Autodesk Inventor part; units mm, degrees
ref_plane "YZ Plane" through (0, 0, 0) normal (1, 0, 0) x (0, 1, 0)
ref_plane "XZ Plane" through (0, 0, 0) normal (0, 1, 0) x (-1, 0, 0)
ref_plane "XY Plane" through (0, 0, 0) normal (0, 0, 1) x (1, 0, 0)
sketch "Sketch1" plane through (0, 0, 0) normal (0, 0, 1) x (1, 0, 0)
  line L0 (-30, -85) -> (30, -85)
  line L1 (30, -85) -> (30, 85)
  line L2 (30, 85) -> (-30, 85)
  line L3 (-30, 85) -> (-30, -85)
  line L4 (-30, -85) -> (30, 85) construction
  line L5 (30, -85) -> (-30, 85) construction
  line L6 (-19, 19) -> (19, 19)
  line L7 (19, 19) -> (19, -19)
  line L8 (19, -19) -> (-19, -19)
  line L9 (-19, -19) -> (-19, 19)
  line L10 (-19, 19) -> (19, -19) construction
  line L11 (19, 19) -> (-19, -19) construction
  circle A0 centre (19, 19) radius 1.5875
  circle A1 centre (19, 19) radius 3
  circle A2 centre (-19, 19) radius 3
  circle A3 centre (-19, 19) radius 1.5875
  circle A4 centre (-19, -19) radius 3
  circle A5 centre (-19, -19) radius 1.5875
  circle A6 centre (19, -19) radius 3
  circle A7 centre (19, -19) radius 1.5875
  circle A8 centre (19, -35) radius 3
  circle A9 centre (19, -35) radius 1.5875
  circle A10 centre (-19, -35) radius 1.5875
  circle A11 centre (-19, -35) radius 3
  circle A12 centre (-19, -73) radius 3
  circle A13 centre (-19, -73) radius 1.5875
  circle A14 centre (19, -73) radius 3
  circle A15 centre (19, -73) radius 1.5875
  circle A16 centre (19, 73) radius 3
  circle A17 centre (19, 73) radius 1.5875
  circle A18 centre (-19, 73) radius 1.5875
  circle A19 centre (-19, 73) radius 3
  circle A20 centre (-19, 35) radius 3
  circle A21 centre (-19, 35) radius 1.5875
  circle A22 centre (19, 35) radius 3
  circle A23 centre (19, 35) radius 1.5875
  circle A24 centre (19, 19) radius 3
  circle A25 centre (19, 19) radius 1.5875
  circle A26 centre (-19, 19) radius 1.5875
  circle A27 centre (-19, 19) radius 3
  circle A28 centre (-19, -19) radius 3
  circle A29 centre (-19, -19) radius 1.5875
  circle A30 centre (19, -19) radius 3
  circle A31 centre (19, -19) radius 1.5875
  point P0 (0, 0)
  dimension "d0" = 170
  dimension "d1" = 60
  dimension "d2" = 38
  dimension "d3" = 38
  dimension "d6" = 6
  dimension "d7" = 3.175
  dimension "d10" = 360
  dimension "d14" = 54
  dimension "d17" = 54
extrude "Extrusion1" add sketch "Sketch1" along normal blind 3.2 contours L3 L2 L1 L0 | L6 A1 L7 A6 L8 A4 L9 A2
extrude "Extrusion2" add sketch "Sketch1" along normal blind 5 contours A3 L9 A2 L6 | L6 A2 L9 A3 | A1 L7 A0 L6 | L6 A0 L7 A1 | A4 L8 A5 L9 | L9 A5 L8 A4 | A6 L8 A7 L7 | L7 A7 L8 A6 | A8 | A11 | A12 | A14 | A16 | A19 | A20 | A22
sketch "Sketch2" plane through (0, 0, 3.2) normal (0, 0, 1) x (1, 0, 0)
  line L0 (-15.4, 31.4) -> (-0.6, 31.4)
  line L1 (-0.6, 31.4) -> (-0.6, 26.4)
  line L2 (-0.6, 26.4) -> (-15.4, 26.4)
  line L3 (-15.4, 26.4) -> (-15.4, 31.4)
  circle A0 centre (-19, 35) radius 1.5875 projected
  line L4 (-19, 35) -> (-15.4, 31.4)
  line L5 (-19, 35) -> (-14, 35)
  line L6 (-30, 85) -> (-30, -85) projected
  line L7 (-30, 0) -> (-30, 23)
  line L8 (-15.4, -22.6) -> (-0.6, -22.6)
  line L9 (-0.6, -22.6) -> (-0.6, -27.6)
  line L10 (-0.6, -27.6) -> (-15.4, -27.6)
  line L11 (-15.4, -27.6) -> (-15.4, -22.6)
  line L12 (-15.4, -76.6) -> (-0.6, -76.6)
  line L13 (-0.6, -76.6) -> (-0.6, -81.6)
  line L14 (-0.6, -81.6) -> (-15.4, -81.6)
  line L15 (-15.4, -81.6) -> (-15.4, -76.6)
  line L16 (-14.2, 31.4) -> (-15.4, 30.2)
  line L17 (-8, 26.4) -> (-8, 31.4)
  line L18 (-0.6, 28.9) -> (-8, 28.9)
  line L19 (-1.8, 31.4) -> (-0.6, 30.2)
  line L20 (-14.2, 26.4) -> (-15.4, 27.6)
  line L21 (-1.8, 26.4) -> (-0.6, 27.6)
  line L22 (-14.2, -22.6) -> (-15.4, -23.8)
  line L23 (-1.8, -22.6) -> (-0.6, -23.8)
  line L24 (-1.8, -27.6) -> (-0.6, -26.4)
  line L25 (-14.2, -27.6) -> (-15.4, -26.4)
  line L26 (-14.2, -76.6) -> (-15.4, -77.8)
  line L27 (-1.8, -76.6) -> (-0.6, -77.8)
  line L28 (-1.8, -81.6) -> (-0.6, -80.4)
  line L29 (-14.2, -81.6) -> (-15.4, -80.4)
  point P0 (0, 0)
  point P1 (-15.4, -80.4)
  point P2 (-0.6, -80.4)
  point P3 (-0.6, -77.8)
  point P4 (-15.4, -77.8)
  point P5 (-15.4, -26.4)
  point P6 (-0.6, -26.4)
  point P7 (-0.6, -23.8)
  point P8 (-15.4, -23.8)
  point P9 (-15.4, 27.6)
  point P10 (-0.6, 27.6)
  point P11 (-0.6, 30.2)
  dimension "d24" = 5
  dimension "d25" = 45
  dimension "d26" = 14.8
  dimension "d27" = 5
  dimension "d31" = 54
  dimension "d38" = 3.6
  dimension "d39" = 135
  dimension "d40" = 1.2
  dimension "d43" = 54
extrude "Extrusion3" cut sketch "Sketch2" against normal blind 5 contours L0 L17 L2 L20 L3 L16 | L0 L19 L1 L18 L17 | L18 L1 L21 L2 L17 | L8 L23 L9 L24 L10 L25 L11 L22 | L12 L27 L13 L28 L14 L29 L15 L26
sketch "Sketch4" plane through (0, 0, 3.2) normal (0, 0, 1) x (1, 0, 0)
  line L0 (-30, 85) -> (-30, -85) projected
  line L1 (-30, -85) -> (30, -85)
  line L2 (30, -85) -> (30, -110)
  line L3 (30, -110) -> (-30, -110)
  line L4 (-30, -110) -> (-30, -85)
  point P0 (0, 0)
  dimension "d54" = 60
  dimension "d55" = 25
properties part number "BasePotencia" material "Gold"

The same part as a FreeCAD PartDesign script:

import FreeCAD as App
import Part
import Sketcher

doc = App.newDocument("Part")
params = doc.addObject("Spreadsheet::Sheet", "Params")
for row, (alias, value) in enumerate([
    ("sketch1_diameter", "6 mm"),
    ("sketch1_width", "60 mm"),
    ("sketch1_height", "170 mm"),
    ("pad1_length", "3.2 mm"),
    ("sketch2_diameter", "6 mm"),
    ("pad2_length", "5 mm"),
    ("pocket1_length", "5 mm"),
], start=1):
    params.set(f"A{row}", alias)
    params.set(f"B{row}", "=" + value)
    params.setAlias(f"B{row}", alias)

body = doc.addObject("PartDesign::Body", "Body")

sketch1 = body.newObject("Sketcher::SketchObject", "Sketch")
sketch1.AttachmentSupport = (doc.getObject("XY_Plane"), [""])
sketch1.MapMode = "FlatFace"
sketch1.addGeometry(Part.LineSegment(App.Vector(-30, 85, 0), App.Vector(-30, -85, 0)), False)
sketch1.addGeometry(Part.LineSegment(App.Vector(-30, -85, 0), App.Vector(30, -85, 0)), False)
sketch1.addGeometry(Part.LineSegment(App.Vector(30, -85, 0), App.Vector(30, 85, 0)), False)
sketch1.addGeometry(Part.LineSegment(App.Vector(30, 85, 0), App.Vector(-30, 85, 0)), False)
sketch1.addGeometry(Part.Circle(App.Vector(-19, -73, 0), App.Vector(0, 0, 1), 3), False)
sketch1.addGeometry(Part.Circle(App.Vector(-19, -35, 0), App.Vector(0, 0, 1), 3), False)
sketch1.addGeometry(Part.Circle(App.Vector(19, -73, 0), App.Vector(0, 0, 1), 3), False)
sketch1.addGeometry(Part.Circle(App.Vector(19, -35, 0), App.Vector(0, 0, 1), 3), False)
sketch1.addGeometry(Part.Circle(App.Vector(-19, 35, 0), App.Vector(0, 0, 1), 3), False)
sketch1.addGeometry(Part.Circle(App.Vector(-19, 73, 0), App.Vector(0, 0, 1), 3), False)
sketch1.addGeometry(Part.Circle(App.Vector(-19, 19, 0), App.Vector(0, 0, 1), 3), False)
sketch1.addGeometry(Part.Circle(App.Vector(-19, -19, 0), App.Vector(0, 0, 1), 3), False)
sketch1.addGeometry(Part.Circle(App.Vector(19, -19, 0), App.Vector(0, 0, 1), 3), False)
sketch1.addGeometry(Part.Circle(App.Vector(19, 19, 0), App.Vector(0, 0, 1), 3), False)
sketch1.addGeometry(Part.Circle(App.Vector(19, 35, 0), App.Vector(0, 0, 1), 3), False)
sketch1.addGeometry(Part.Circle(App.Vector(19, 73, 0), App.Vector(0, 0, 1), 3), False)
sketch1.addConstraint(Sketcher.Constraint("Coincident", 0, 2, 1, 1))
sketch1.addConstraint(Sketcher.Constraint("Coincident", 1, 2, 2, 1))
sketch1.addConstraint(Sketcher.Constraint("Coincident", 2, 2, 3, 1))
sketch1.addConstraint(Sketcher.Constraint("Coincident", 3, 2, 0, 1))
sketch1.addConstraint(Sketcher.Constraint("Vertical", 0))
sketch1.addConstraint(Sketcher.Constraint("Horizontal", 1))
sketch1.addConstraint(Sketcher.Constraint("Vertical", 2))
sketch1.addConstraint(Sketcher.Constraint("Horizontal", 3))
sketch1.addConstraint(Sketcher.Constraint("Equal", 4, 5))
sketch1.addConstraint(Sketcher.Constraint("Equal", 5, 6))
sketch1.addConstraint(Sketcher.Constraint("Equal", 6, 7))
sketch1.addConstraint(Sketcher.Constraint("Equal", 7, 8))
sketch1.addConstraint(Sketcher.Constraint("Equal", 8, 9))
sketch1.addConstraint(Sketcher.Constraint("Equal", 9, 10))
sketch1.addConstraint(Sketcher.Constraint("Equal", 10, 11))
sketch1.addConstraint(Sketcher.Constraint("Equal", 11, 12))
sketch1.addConstraint(Sketcher.Constraint("Equal", 12, 13))
sketch1.addConstraint(Sketcher.Constraint("Equal", 13, 14))
sketch1.addConstraint(Sketcher.Constraint("Equal", 14, 15))
sketch1.addConstraint(Sketcher.Constraint("Symmetric", 7, 3, 8, 3, -1, 1))
sketch1.addConstraint(Sketcher.Constraint("Symmetric", 6, 3, 9, 3, -1, 1))
sketch1.addConstraint(Sketcher.Constraint("Symmetric", 10, 3, 12, 3, -1, 1))
sketch1.addConstraint(Sketcher.Constraint("Symmetric", 11, 3, 13, 3, -1, 1))
sketch1.addConstraint(Sketcher.Constraint("Symmetric", 5, 3, 14, 3, -1, 1))
sketch1.addConstraint(Sketcher.Constraint("Symmetric", 4, 3, 15, 3, -1, 1))
sketch1.addConstraint(Sketcher.Constraint("Symmetric", 0, 2, 2, 2, -1, 1))
sketch1.addConstraint(Sketcher.Constraint("Symmetric", 4, 3, 6, 3, -2))
sketch1.addConstraint(Sketcher.Constraint("Symmetric", 5, 3, 7, 3, -2))
sketch1.addConstraint(Sketcher.Constraint("Symmetric", 11, 3, 12, 3, -2))
sketch1.addConstraint(Sketcher.Constraint("Vertical", 4, 3, 5, 3))
sketch1.addConstraint(Sketcher.Constraint("Vertical", 9, 3, 10, 3))
sketch1.addConstraint(Sketcher.Constraint("Diameter", 4, 6.0))
sketch1.addConstraint(Sketcher.Constraint("DistanceX", 1, 1, 1, 2, 60.0))
sketch1.addConstraint(Sketcher.Constraint("DistanceY", 0, 2, 0, 1, 170.0))
sketch1.addConstraint(Sketcher.Constraint("DistanceY", 4, 3, 5, 3, 38.0))
sketch1.addConstraint(Sketcher.Constraint("DistanceX", 4, 3, 6, 3, 38.0))
sketch1.addConstraint(Sketcher.Constraint("DistanceY", 5, 3, 10, 3, 54.0))
sketch1.addConstraint(Sketcher.Constraint("DistanceY", 10, 3, 9, 3, 54.0))
sketch1.setExpression("Constraints[31]", "Params.sketch1_diameter")
sketch1.setExpression("Constraints[32]", "Params.sketch1_width")
sketch1.setExpression("Constraints[33]", "Params.sketch1_height")
pad1 = body.newObject("PartDesign::Pad", "Pad")
pad1.Profile = sketch1
pad1.setExpression("Length", "Params.pad1_length")

sketch2 = body.newObject("Sketcher::SketchObject", "Sketch001")
sketch2.AttachmentSupport = (doc.getObject("XY_Plane"), [""])
sketch2.MapMode = "FlatFace"
sketch2.addGeometry(Part.Circle(App.Vector(-19, 19, 0), App.Vector(0, 0, 1), 3), False)
sketch2.addGeometry(Part.Circle(App.Vector(-19, 19, 0), App.Vector(0, 0, 1), 1.6), False)
sketch2.addGeometry(Part.Circle(App.Vector(19, 19, 0), App.Vector(0, 0, 1), 3), False)
sketch2.addGeometry(Part.Circle(App.Vector(19, 19, 0), App.Vector(0, 0, 1), 1.6), False)
sketch2.addGeometry(Part.Circle(App.Vector(-19, -19, 0), App.Vector(0, 0, 1), 3), False)
sketch2.addGeometry(Part.Circle(App.Vector(-19, -19, 0), App.Vector(0, 0, 1), 1.6), False)
sketch2.addGeometry(Part.Circle(App.Vector(19, -19, 0), App.Vector(0, 0, 1), 3), False)
sketch2.addGeometry(Part.Circle(App.Vector(19, -19, 0), App.Vector(0, 0, 1), 1.6), False)
sketch2.addGeometry(Part.Circle(App.Vector(19, -35, 0), App.Vector(0, 0, 1), 3), False)
sketch2.addGeometry(Part.Circle(App.Vector(19, -35, 0), App.Vector(0, 0, 1), 1.6), False)
sketch2.addGeometry(Part.Circle(App.Vector(-19, -35, 0), App.Vector(0, 0, 1), 3), False)
sketch2.addGeometry(Part.Circle(App.Vector(-19, -35, 0), App.Vector(0, 0, 1), 1.6), False)
sketch2.addGeometry(Part.Circle(App.Vector(-19, -73, 0), App.Vector(0, 0, 1), 3), False)
sketch2.addGeometry(Part.Circle(App.Vector(-19, -73, 0), App.Vector(0, 0, 1), 1.6), False)
sketch2.addGeometry(Part.Circle(App.Vector(19, -73, 0), App.Vector(0, 0, 1), 3), False)
sketch2.addGeometry(Part.Circle(App.Vector(19, -73, 0), App.Vector(0, 0, 1), 1.6), False)
sketch2.addGeometry(Part.Circle(App.Vector(19, 73, 0), App.Vector(0, 0, 1), 3), False)
sketch2.addGeometry(Part.Circle(App.Vector(19, 73, 0), App.Vector(0, 0, 1), 1.6), False)
sketch2.addGeometry(Part.Circle(App.Vector(-19, 73, 0), App.Vector(0, 0, 1), 3), False)
sketch2.addGeometry(Part.Circle(App.Vector(-19, 73, 0), App.Vector(0, 0, 1), 1.6), False)
sketch2.addGeometry(Part.Circle(App.Vector(-19, 35, 0), App.Vector(0, 0, 1), 3), False)
sketch2.addGeometry(Part.Circle(App.Vector(-19, 35, 0), App.Vector(0, 0, 1), 1.6), False)
sketch2.addGeometry(Part.Circle(App.Vector(19, 35, 0), App.Vector(0, 0, 1), 3), False)
sketch2.addGeometry(Part.Circle(App.Vector(19, 35, 0), App.Vector(0, 0, 1), 1.6), False)
sketch2.addConstraint(Sketcher.Constraint("Coincident", 1, 3, 0, 3))
sketch2.addConstraint(Sketcher.Constraint("Coincident", 3, 3, 2, 3))
sketch2.addConstraint(Sketcher.Constraint("Coincident", 5, 3, 4, 3))
sketch2.addConstraint(Sketcher.Constraint("Coincident", 7, 3, 6, 3))
sketch2.addConstraint(Sketcher.Constraint("Coincident", 9, 3, 8, 3))
sketch2.addConstraint(Sketcher.Constraint("Coincident", 11, 3, 10, 3))
sketch2.addConstraint(Sketcher.Constraint("Coincident", 13, 3, 12, 3))
sketch2.addConstraint(Sketcher.Constraint("Coincident", 15, 3, 14, 3))
sketch2.addConstraint(Sketcher.Constraint("Coincident", 17, 3, 16, 3))
sketch2.addConstraint(Sketcher.Constraint("Coincident", 19, 3, 18, 3))
sketch2.addConstraint(Sketcher.Constraint("Coincident", 21, 3, 20, 3))
sketch2.addConstraint(Sketcher.Constraint("Coincident", 23, 3, 22, 3))
sketch2.addConstraint(Sketcher.Constraint("Equal", 0, 2))
sketch2.addConstraint(Sketcher.Constraint("Equal", 1, 3))
sketch2.addConstraint(Sketcher.Constraint("Equal", 2, 4))
sketch2.addConstraint(Sketcher.Constraint("Equal", 3, 5))
sketch2.addConstraint(Sketcher.Constraint("Equal", 4, 6))
sketch2.addConstraint(Sketcher.Constraint("Equal", 5, 7))
sketch2.addConstraint(Sketcher.Constraint("Equal", 6, 8))
sketch2.addConstraint(Sketcher.Constraint("Equal", 7, 9))
sketch2.addConstraint(Sketcher.Constraint("Equal", 8, 10))
sketch2.addConstraint(Sketcher.Constraint("Equal", 9, 11))
sketch2.addConstraint(Sketcher.Constraint("Equal", 10, 12))
sketch2.addConstraint(Sketcher.Constraint("Equal", 11, 13))
sketch2.addConstraint(Sketcher.Constraint("Equal", 12, 14))
sketch2.addConstraint(Sketcher.Constraint("Equal", 13, 15))
sketch2.addConstraint(Sketcher.Constraint("Equal", 14, 16))
sketch2.addConstraint(Sketcher.Constraint("Equal", 15, 17))
sketch2.addConstraint(Sketcher.Constraint("Equal", 16, 18))
sketch2.addConstraint(Sketcher.Constraint("Equal", 17, 19))
sketch2.addConstraint(Sketcher.Constraint("Equal", 18, 20))
sketch2.addConstraint(Sketcher.Constraint("Equal", 19, 21))
sketch2.addConstraint(Sketcher.Constraint("Equal", 20, 22))
sketch2.addConstraint(Sketcher.Constraint("Equal", 21, 23))
sketch2.addConstraint(Sketcher.Constraint("Symmetric", 2, 3, 4, 3, -1, 1))
sketch2.addConstraint(Sketcher.Constraint("Symmetric", 0, 3, 6, 3, -1, 1))
sketch2.addConstraint(Sketcher.Constraint("Symmetric", 12, 3, 16, 3, -1, 1))
sketch2.addConstraint(Sketcher.Constraint("Symmetric", 14, 3, 18, 3, -1, 1))
sketch2.addConstraint(Sketcher.Constraint("Symmetric", 8, 3, 20, 3, -1, 1))
sketch2.addConstraint(Sketcher.Constraint("Symmetric", 10, 3, 22, 3, -1, 1))
sketch2.addConstraint(Sketcher.Constraint("Symmetric", 0, 3, 2, 3, -2))
sketch2.addConstraint(Sketcher.Constraint("Symmetric", 8, 3, 10, 3, -2))
sketch2.addConstraint(Sketcher.Constraint("Symmetric", 12, 3, 14, 3, -2))
sketch2.addConstraint(Sketcher.Constraint("Vertical", 7, 3, 8, 3))
sketch2.addConstraint(Sketcher.Constraint("Vertical", 11, 3, 12, 3))
sketch2.addConstraint(Sketcher.Constraint("Diameter", 0, 6.0))
sketch2.addConstraint(Sketcher.Constraint("Diameter", 1, 3.175))
sketch2.addConstraint(Sketcher.Constraint("DistanceX", 0, 3, 2, 3, 38.0))
sketch2.addConstraint(Sketcher.Constraint("DistanceY", 4, 3, 0, 3, 38.0))
sketch2.addConstraint(Sketcher.Constraint("DistanceY", 8, 3, 2, 3, 54.0))
sketch2.addConstraint(Sketcher.Constraint("DistanceY", 12, 3, 10, 3, 38.0))
sketch2.setExpression("Constraints[45]", "Params.sketch2_diameter")
pad2 = body.newObject("PartDesign::Pad", "Pad001")
pad2.Profile = sketch2
pad2.setExpression("Length", "Params.pad2_length")

sketch3 = body.newObject("Sketcher::SketchObject", "Sketch002")
sketch3.AttachmentSupport = (doc.getObject("XY_Plane"), [""])
sketch3.MapMode = "FlatFace"
sketch3.AttachmentOffset = App.Placement(App.Vector(0, 0, 3.2), App.Rotation())
sketch3.addGeometry(Part.LineSegment(App.Vector(-14.2, 31.4, 0), App.Vector(-15.4, 30.2, 0)), False)
sketch3.addGeometry(Part.LineSegment(App.Vector(-15.4, 30.2, 0), App.Vector(-15.4, 27.6, 0)), False)
sketch3.addGeometry(Part.LineSegment(App.Vector(-15.4, 27.6, 0), App.Vector(-14.2, 26.4, 0)), False)
sketch3.addGeometry(Part.LineSegment(App.Vector(-14.2, 26.4, 0), App.Vector(-1.8, 26.4, 0)), False)
sketch3.addGeometry(Part.LineSegment(App.Vector(-1.8, 26.4, 0), App.Vector(-0.6, 27.6, 0)), False)
sketch3.addGeometry(Part.LineSegment(App.Vector(-0.6, 27.6, 0), App.Vector(-0.6, 30.2, 0)), False)
sketch3.addGeometry(Part.LineSegment(App.Vector(-0.6, 30.2, 0), App.Vector(-1.8, 31.4, 0)), False)
sketch3.addGeometry(Part.LineSegment(App.Vector(-1.8, 31.4, 0), App.Vector(-14.2, 31.4, 0)), False)
sketch3.addGeometry(Part.LineSegment(App.Vector(-1.8, -22.6, 0), App.Vector(-14.2, -22.6, 0)), False)
sketch3.addGeometry(Part.LineSegment(App.Vector(-14.2, -22.6, 0), App.Vector(-15.4, -23.8, 0)), False)
sketch3.addGeometry(Part.LineSegment(App.Vector(-15.4, -23.8, 0), App.Vector(-15.4, -26.4, 0)), False)
sketch3.addGeometry(Part.LineSegment(App.Vector(-15.4, -26.4, 0), App.Vector(-14.2, -27.6, 0)), False)
sketch3.addGeometry(Part.LineSegment(App.Vector(-14.2, -27.6, 0), App.Vector(-1.8, -27.6, 0)), False)
sketch3.addGeometry(Part.LineSegment(App.Vector(-1.8, -27.6, 0), App.Vector(-0.6, -26.4, 0)), False)
sketch3.addGeometry(Part.LineSegment(App.Vector(-0.6, -26.4, 0), App.Vector(-0.6, -23.8, 0)), False)
sketch3.addGeometry(Part.LineSegment(App.Vector(-0.6, -23.8, 0), App.Vector(-1.8, -22.6, 0)), False)
sketch3.addGeometry(Part.LineSegment(App.Vector(-1.8, -76.6, 0), App.Vector(-14.2, -76.6, 0)), False)
sketch3.addGeometry(Part.LineSegment(App.Vector(-14.2, -76.6, 0), App.Vector(-15.4, -77.8, 0)), False)
sketch3.addGeometry(Part.LineSegment(App.Vector(-15.4, -77.8, 0), App.Vector(-15.4, -80.4, 0)), False)
sketch3.addGeometry(Part.LineSegment(App.Vector(-15.4, -80.4, 0), App.Vector(-14.2, -81.6, 0)), False)
sketch3.addGeometry(Part.LineSegment(App.Vector(-14.2, -81.6, 0), App.Vector(-1.8, -81.6, 0)), False)
sketch3.addGeometry(Part.LineSegment(App.Vector(-1.8, -81.6, 0), App.Vector(-0.6, -80.4, 0)), False)
sketch3.addGeometry(Part.LineSegment(App.Vector(-0.6, -80.4, 0), App.Vector(-0.6, -77.8, 0)), False)
sketch3.addGeometry(Part.LineSegment(App.Vector(-0.6, -77.8, 0), App.Vector(-1.8, -76.6, 0)), False)
sketch3.addConstraint(Sketcher.Constraint("Coincident", 0, 2, 1, 1))
sketch3.addConstraint(Sketcher.Constraint("Coincident", 1, 2, 2, 1))
sketch3.addConstraint(Sketcher.Constraint("Coincident", 2, 2, 3, 1))
sketch3.addConstraint(Sketcher.Constraint("Coincident", 3, 2, 4, 1))
sketch3.addConstraint(Sketcher.Constraint("Coincident", 4, 2, 5, 1))
sketch3.addConstraint(Sketcher.Constraint("Coincident", 5, 2, 6, 1))
sketch3.addConstraint(Sketcher.Constraint("Coincident", 6, 2, 7, 1))
sketch3.addConstraint(Sketcher.Constraint("Coincident", 7, 2, 0, 1))
sketch3.addConstraint(Sketcher.Constraint("Coincident", 8, 2, 9, 1))
sketch3.addConstraint(Sketcher.Constraint("Coincident", 9, 2, 10, 1))
sketch3.addConstraint(Sketcher.Constraint("Coincident", 10, 2, 11, 1))
sketch3.addConstraint(Sketcher.Constraint("Coincident", 11, 2, 12, 1))
sketch3.addConstraint(Sketcher.Constraint("Coincident", 12, 2, 13, 1))
sketch3.addConstraint(Sketcher.Constraint("Coincident", 13, 2, 14, 1))
sketch3.addConstraint(Sketcher.Constraint("Coincident", 14, 2, 15, 1))
sketch3.addConstraint(Sketcher.Constraint("Coincident", 15, 2, 8, 1))
sketch3.addConstraint(Sketcher.Constraint("Coincident", 16, 2, 17, 1))
sketch3.addConstraint(Sketcher.Constraint("Coincident", 17, 2, 18, 1))
sketch3.addConstraint(Sketcher.Constraint("Coincident", 18, 2, 19, 1))
sketch3.addConstraint(Sketcher.Constraint("Coincident", 19, 2, 20, 1))
sketch3.addConstraint(Sketcher.Constraint("Coincident", 20, 2, 21, 1))
sketch3.addConstraint(Sketcher.Constraint("Coincident", 21, 2, 22, 1))
sketch3.addConstraint(Sketcher.Constraint("Coincident", 22, 2, 23, 1))
sketch3.addConstraint(Sketcher.Constraint("Coincident", 23, 2, 16, 1))
sketch3.addConstraint(Sketcher.Constraint("Vertical", 1))
sketch3.addConstraint(Sketcher.Constraint("Horizontal", 3))
sketch3.addConstraint(Sketcher.Constraint("Vertical", 5))
sketch3.addConstraint(Sketcher.Constraint("Horizontal", 7))
sketch3.addConstraint(Sketcher.Constraint("Horizontal", 8))
sketch3.addConstraint(Sketcher.Constraint("Vertical", 10))
sketch3.addConstraint(Sketcher.Constraint("Horizontal", 12))
sketch3.addConstraint(Sketcher.Constraint("Vertical", 14))
sketch3.addConstraint(Sketcher.Constraint("Horizontal", 16))
sketch3.addConstraint(Sketcher.Constraint("Vertical", 18))
sketch3.addConstraint(Sketcher.Constraint("Horizontal", 20))
sketch3.addConstraint(Sketcher.Constraint("Vertical", 22))
sketch3.addConstraint(Sketcher.Constraint("Perpendicular", 0, 2))
sketch3.addConstraint(Sketcher.Constraint("Perpendicular", 2, 4))
sketch3.addConstraint(Sketcher.Constraint("Perpendicular", 4, 6))
sketch3.addConstraint(Sketcher.Constraint("Perpendicular", 6, 9))
sketch3.addConstraint(Sketcher.Constraint("Perpendicular", 9, 11))
sketch3.addConstraint(Sketcher.Constraint("Perpendicular", 11, 13))
sketch3.addConstraint(Sketcher.Constraint("Perpendicular", 13, 15))
sketch3.addConstraint(Sketcher.Constraint("Perpendicular", 15, 17))
sketch3.addConstraint(Sketcher.Constraint("Perpendicular", 17, 19))
sketch3.addConstraint(Sketcher.Constraint("Perpendicular", 19, 21))
sketch3.addConstraint(Sketcher.Constraint("Perpendicular", 21, 23))
sketch3.addConstraint(Sketcher.Constraint("Horizontal", 1, 2, 4, 2))
sketch3.addConstraint(Sketcher.Constraint("Horizontal", 0, 2, 5, 2))
sketch3.addConstraint(Sketcher.Constraint("Horizontal", 10, 2, 13, 2))
sketch3.addConstraint(Sketcher.Constraint("Horizontal", 9, 2, 14, 2))
sketch3.addConstraint(Sketcher.Constraint("Horizontal", 18, 2, 21, 2))
sketch3.addConstraint(Sketcher.Constraint("Horizontal", 17, 2, 22, 2))
sketch3.addConstraint(Sketcher.Constraint("Vertical", 3, 2, 6, 2))
sketch3.addConstraint(Sketcher.Constraint("Vertical", 2, 2, 7, 2))
sketch3.addConstraint(Sketcher.Constraint("Vertical", 7, 2, 8, 2))
sketch3.addConstraint(Sketcher.Constraint("Vertical", 1, 2, 9, 2))
sketch3.addConstraint(Sketcher.Constraint("Vertical", 8, 2, 11, 2))
sketch3.addConstraint(Sketcher.Constraint("Vertical", 6, 2, 12, 2))
sketch3.addConstraint(Sketcher.Constraint("Vertical", 11, 2, 16, 2))
sketch3.addConstraint(Sketcher.Constraint("Vertical", 10, 2, 17, 2))
sketch3.addConstraint(Sketcher.Constraint("Vertical", 16, 2, 19, 2))
sketch3.addConstraint(Sketcher.Constraint("Vertical", 15, 2, 20, 2))
sketch3.addConstraint(Sketcher.Constraint("Equal", 5, 10))
sketch3.addConstraint(Sketcher.Constraint("Equal", 14, 18))
sketch3.addConstraint(Sketcher.Constraint("DistanceY", 3, 2, 6, 2, 5.0))
sketch3.addConstraint(Sketcher.Constraint("DistanceY", 10, 2, 1, 2, 54.0))
sketch3.addConstraint(Sketcher.Constraint("DistanceY", 18, 2, 10, 2, 54.0))
sketch3.addConstraint(Sketcher.Constraint("DistanceX", 1, 2, 2, 2, 1.2))
sketch3.addConstraint(Sketcher.Constraint("DistanceX", 1, 2, 4, 2, 14.8))
sketch3.addConstraint(Sketcher.Constraint("DistanceX", 0, 2, -1, 1, 15.4))
sketch3.addConstraint(Sketcher.Constraint("DistanceY", -1, 1, 0, 2, 30.2))
pocket1 = body.newObject("PartDesign::Pocket", "Pocket")
pocket1.Profile = sketch3
pocket1.setExpression("Length", "Params.pocket1_length")

doc.recompute()
